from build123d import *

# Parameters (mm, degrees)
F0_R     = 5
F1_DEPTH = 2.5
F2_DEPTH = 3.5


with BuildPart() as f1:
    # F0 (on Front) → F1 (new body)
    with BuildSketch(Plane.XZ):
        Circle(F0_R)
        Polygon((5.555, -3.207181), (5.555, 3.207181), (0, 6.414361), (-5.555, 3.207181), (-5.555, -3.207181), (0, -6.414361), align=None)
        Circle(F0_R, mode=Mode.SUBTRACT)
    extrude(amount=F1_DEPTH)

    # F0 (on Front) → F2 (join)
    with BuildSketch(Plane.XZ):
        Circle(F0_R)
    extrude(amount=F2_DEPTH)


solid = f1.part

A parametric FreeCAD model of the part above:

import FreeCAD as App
import Part
import Sketcher
Q = App.Units.Quantity

doc = App.newDocument("Part")
body = doc.addObject("PartDesign::Body", "Body")

# Sketch on XZ plane
sketch1 = doc.addObject("Sketcher::SketchObject", "Sketch")
body.addObject(sketch1)
sketch1.AttachmentSupport = (doc.XZ_Plane, [""])
sketch1.MapMode = "FlatFace"
sketch1.addGeometry(Part.LineSegment(App.Vector(5.555, -3.207181, 0), App.Vector(5.555, 3.207181, 0)), False)
sketch1.addGeometry(Part.LineSegment(App.Vector(5.555, 3.207181, 0), App.Vector(0, 6.414361, 0)), False)
sketch1.addGeometry(Part.LineSegment(App.Vector(0, 6.414361, 0), App.Vector(-5.555, 3.207181, 0)), False)
sketch1.addGeometry(Part.LineSegment(App.Vector(-5.555, 3.207181, 0), App.Vector(-5.555, -3.207181, 0)), False)
sketch1.addGeometry(Part.LineSegment(App.Vector(-5.555, -3.207181, 0), App.Vector(0, -6.414361, 0)), False)
sketch1.addGeometry(Part.LineSegment(App.Vector(0, -6.414361, 0), App.Vector(5.555, -3.207181, 0)), False)
sketch1.addGeometry(Part.Circle(App.Vector(0, 0, 0), App.Vector(0, 0, 1), 5), False)
sketch1.addConstraint(Sketcher.Constraint("Coincident", 0, 2, 1, 1))
sketch1.addConstraint(Sketcher.Constraint("Coincident", 1, 2, 2, 1))
sketch1.addConstraint(Sketcher.Constraint("Coincident", 2, 2, 3, 1))
sketch1.addConstraint(Sketcher.Constraint("Coincident", 3, 2, 4, 1))
sketch1.addConstraint(Sketcher.Constraint("Coincident", 4, 2, 5, 1))
sketch1.addConstraint(Sketcher.Constraint("Coincident", 5, 2, 0, 1))
sketch1.addConstraint(Sketcher.Constraint("Vertical", 0))
sketch1.addConstraint(Sketcher.Constraint("Vertical", 3))
sketch1.addConstraint(Sketcher.Constraint("Coincident", 6, 3, -1, 1))
sketch1.addConstraint(Sketcher.Constraint("Symmetric", 0, 2, 3, 2, -1, 1))
sketch1.addConstraint(Sketcher.Constraint("Symmetric", 1, 2, 4, 2, -1, 1))
sketch1.addConstraint(Sketcher.Constraint("PointOnObject", 1, 2, -2))
sketch1.addConstraint(Sketcher.Constraint("Parallel", 2, 5))
sketch1.addConstraint(Sketcher.Constraint("Horizontal", 0, 2, 2, 2))
sketch1.addConstraint(Sketcher.Constraint("Diameter", 6, Q("10 mm")))
sketch1.addConstraint(Sketcher.Constraint("Angle", 1, Q("150.000006 deg")))
sketch1.addConstraint(Sketcher.Constraint("DistanceX", 2, 2, 0, 2, Q("11.11 mm")))
sketch1.addConstraint(Sketcher.Constraint("DistanceY", 0, 1, 0, 2, Q("6.414362 mm")))
pad1 = doc.addObject("PartDesign::Pad", "Pad")
body.addObject(pad1)
pad1.Profile = sketch1
pad1.Length = 2.5

# Sketch on XZ plane
sketch2 = doc.addObject("Sketcher::SketchObject", "Sketch001")
body.addObject(sketch2)
sketch2.AttachmentSupport = (doc.XZ_Plane, [""])
sketch2.MapMode = "FlatFace"
sketch2.addGeometry(Part.Circle(App.Vector(0, 0, 0), App.Vector(0, 0, 1), 5), False)
sketch2.addConstraint(Sketcher.Constraint("Coincident", 0, 3, -1, 1))
sketch2.addConstraint(Sketcher.Constraint("Diameter", 0, Q("10 mm")))
pad2 = doc.addObject("PartDesign::Pad", "Pad001")
body.addObject(pad2)
pad2.Profile = sketch2
pad2.Length = 3.5

doc.recompute()
